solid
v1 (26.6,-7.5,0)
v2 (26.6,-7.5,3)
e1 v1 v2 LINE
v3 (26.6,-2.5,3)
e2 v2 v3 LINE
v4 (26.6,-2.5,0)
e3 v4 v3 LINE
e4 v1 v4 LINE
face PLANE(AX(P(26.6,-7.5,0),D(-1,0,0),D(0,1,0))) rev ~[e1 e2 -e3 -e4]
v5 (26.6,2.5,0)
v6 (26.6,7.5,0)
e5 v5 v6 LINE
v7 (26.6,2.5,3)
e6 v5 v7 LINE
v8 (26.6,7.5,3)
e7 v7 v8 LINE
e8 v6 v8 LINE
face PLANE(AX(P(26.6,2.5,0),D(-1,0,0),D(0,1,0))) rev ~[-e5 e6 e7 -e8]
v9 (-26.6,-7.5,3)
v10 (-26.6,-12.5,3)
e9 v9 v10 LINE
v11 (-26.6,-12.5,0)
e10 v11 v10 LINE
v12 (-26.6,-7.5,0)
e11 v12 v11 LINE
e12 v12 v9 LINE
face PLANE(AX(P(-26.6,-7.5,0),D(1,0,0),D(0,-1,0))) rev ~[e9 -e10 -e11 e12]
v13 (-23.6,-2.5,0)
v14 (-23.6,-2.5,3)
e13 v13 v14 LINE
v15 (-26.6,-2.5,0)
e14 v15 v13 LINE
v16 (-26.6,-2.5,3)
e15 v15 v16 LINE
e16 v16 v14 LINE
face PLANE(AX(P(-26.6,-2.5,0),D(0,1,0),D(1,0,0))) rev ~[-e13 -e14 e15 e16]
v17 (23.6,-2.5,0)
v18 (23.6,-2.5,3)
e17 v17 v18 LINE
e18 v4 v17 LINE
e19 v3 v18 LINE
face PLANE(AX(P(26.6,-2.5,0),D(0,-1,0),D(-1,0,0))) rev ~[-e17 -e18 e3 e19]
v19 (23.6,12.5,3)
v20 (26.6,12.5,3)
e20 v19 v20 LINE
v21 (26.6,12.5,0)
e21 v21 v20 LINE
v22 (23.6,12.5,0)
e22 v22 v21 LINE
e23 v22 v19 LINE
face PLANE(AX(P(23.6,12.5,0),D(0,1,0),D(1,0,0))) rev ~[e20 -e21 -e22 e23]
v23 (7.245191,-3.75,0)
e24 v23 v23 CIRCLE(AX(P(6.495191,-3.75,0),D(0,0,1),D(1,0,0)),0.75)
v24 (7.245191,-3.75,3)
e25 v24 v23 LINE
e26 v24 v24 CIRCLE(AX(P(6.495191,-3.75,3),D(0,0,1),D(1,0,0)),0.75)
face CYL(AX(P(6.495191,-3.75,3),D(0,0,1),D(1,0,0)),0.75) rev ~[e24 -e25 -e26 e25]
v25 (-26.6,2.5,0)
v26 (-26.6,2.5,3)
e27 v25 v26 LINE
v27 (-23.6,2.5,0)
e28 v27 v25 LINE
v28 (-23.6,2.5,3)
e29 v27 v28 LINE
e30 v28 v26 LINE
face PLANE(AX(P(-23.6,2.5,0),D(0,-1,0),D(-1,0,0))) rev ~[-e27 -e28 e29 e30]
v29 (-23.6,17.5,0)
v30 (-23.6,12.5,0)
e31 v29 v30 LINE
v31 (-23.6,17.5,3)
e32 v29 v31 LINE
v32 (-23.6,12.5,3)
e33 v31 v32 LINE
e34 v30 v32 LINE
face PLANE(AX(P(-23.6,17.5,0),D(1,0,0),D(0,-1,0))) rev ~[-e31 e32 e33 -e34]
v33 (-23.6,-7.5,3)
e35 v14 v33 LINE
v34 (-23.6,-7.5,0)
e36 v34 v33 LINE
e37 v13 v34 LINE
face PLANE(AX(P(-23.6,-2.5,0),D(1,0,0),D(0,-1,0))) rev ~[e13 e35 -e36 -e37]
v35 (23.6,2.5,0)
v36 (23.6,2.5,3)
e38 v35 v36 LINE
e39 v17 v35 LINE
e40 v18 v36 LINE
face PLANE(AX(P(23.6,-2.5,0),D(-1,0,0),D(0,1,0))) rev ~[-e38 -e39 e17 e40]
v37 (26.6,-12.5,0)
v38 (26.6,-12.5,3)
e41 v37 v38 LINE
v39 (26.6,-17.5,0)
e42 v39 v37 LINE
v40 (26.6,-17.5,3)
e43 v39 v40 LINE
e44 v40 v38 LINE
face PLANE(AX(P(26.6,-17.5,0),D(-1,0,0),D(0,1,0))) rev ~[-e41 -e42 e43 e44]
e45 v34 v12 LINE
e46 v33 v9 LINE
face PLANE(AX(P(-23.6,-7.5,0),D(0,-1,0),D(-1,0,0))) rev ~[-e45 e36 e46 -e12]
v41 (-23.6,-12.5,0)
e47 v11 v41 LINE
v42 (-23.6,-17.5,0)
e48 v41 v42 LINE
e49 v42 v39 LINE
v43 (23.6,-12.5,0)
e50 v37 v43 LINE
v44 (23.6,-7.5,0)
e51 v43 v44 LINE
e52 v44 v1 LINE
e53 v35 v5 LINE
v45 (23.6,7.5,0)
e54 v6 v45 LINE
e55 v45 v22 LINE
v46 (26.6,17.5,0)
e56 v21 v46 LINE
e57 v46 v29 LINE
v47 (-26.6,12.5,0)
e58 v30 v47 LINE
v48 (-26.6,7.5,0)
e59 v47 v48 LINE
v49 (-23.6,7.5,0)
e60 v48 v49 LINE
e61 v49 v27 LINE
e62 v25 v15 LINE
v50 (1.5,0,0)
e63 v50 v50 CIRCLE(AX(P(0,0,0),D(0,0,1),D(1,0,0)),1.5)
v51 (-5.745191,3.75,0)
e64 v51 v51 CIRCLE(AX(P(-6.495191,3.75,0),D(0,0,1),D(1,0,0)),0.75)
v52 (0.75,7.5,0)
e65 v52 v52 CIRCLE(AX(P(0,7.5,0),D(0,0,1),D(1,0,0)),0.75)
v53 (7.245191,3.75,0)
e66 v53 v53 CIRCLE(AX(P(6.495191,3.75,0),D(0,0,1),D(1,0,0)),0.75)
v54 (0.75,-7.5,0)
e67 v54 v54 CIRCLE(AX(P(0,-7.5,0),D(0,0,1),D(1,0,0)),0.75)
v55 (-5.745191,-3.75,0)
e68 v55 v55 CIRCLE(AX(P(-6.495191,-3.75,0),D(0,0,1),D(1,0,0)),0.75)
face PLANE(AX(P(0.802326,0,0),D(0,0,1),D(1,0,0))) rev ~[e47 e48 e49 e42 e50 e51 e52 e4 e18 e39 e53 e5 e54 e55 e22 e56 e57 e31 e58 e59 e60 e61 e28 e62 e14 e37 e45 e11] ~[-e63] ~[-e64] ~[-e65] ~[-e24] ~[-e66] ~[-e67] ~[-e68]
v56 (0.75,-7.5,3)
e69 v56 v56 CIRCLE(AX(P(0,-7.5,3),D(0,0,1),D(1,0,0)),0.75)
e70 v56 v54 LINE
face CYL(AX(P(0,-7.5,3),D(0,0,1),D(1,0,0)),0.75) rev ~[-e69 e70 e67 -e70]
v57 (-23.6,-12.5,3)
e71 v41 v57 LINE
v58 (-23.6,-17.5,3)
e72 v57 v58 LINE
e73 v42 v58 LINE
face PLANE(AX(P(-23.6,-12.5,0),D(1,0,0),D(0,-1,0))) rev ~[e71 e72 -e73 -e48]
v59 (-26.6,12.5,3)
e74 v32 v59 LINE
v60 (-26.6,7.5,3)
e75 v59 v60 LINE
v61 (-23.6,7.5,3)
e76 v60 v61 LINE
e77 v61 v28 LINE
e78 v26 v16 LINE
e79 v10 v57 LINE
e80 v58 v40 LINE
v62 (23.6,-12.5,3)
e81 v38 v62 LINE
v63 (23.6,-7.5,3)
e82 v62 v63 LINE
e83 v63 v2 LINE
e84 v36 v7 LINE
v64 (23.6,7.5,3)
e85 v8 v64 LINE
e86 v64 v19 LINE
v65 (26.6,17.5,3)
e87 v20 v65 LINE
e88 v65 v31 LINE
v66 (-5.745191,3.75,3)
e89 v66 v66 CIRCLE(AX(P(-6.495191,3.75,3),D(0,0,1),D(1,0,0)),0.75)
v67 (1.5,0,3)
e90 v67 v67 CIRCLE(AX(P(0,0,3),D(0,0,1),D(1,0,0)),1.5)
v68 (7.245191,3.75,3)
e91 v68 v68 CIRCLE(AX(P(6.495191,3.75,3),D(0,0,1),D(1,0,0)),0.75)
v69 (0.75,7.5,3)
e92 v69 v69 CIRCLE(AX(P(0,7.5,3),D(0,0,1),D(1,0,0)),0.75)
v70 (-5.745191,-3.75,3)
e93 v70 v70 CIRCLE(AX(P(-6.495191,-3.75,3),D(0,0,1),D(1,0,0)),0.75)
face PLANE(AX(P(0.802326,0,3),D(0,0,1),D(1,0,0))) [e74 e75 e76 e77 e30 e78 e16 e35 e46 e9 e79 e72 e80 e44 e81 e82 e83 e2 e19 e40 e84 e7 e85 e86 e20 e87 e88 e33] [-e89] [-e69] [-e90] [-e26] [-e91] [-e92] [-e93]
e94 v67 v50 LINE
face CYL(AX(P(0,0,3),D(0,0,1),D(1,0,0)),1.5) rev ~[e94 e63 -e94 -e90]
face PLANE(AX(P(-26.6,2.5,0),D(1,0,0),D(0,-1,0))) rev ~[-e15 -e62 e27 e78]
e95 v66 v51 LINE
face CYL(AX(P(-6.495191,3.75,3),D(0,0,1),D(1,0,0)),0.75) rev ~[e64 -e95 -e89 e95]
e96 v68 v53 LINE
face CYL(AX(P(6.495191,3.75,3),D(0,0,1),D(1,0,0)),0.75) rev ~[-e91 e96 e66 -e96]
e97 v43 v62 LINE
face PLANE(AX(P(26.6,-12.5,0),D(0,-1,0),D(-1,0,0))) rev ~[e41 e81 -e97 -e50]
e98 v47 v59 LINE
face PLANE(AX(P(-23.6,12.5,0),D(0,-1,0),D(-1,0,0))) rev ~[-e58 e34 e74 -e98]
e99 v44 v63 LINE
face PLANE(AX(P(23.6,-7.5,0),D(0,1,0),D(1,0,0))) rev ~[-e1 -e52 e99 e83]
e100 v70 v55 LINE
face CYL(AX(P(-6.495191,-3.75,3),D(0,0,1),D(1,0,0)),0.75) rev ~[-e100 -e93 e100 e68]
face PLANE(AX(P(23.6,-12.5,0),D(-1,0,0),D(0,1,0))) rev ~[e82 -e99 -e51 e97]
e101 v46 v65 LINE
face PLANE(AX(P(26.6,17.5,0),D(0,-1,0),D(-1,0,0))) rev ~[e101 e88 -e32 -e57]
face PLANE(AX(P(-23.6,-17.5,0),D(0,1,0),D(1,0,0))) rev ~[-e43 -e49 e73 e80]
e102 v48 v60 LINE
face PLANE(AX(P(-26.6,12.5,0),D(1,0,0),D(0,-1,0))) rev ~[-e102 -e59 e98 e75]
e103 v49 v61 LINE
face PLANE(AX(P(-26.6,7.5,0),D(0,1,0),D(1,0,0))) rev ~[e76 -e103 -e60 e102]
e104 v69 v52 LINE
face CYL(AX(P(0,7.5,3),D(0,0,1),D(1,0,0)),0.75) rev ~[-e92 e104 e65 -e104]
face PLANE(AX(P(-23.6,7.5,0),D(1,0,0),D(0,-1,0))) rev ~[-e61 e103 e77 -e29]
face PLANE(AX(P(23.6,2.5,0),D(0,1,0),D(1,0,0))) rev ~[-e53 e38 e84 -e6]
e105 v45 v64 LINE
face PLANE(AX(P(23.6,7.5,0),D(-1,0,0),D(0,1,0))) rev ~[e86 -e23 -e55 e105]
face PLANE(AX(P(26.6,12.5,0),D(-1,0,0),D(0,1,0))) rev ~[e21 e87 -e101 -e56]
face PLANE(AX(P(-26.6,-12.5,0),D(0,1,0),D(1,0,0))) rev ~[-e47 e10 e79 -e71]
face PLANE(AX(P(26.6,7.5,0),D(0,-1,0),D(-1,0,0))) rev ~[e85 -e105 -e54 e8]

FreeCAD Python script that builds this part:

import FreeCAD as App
import Part
import Sketcher

doc = App.newDocument("Part")
body = doc.addObject("PartDesign::Body", "Body")

sketch1 = body.newObject("Sketcher::SketchObject", "Sketch")
sketch1.AttachmentSupport = (doc.getObject("XY_Plane"), [""])
sketch1.MapMode = "FlatFace"
sketch1.addGeometry([
    Part.LineSegment(App.Vector(26.6, 2.5, 0), App.Vector(26.6, 7.5, 0)),
    Part.LineSegment(App.Vector(26.6, 7.5, 0), App.Vector(23.6, 7.5, 0)),
    Part.LineSegment(App.Vector(23.6, 7.5, 0), App.Vector(23.6, 12.5, 0)),
    Part.LineSegment(App.Vector(23.6, 12.5, 0), App.Vector(26.6, 12.5, 0)),
    Part.LineSegment(App.Vector(26.6, 12.5, 0), App.Vector(26.6, 17.5, 0)),
    Part.LineSegment(App.Vector(26.6, 17.5, 0), App.Vector(-23.6, 17.5, 0)),
    Part.LineSegment(App.Vector(-23.6, 17.5, 0), App.Vector(-23.6, 12.5, 0)),
    Part.LineSegment(App.Vector(-23.6, 12.5, 0), App.Vector(-26.6, 12.5, 0)),
    Part.LineSegment(App.Vector(-26.6, 12.5, 0), App.Vector(-26.6, 7.5, 0)),
    Part.LineSegment(App.Vector(-26.6, 7.5, 0), App.Vector(-23.6, 7.5, 0)),
    Part.LineSegment(App.Vector(-23.6, 7.5, 0), App.Vector(-23.6, 2.5, 0)),
    Part.LineSegment(App.Vector(-23.6, 2.5, 0), App.Vector(-26.6, 2.5, 0)),
    Part.LineSegment(App.Vector(-26.6, 2.5, 0), App.Vector(-26.6, -2.5, 0)),
    Part.LineSegment(App.Vector(-26.6, -2.5, 0), App.Vector(-23.6, -2.5, 0)),
    Part.LineSegment(App.Vector(-23.6, -2.5, 0), App.Vector(-23.6, -7.5, 0)),
    Part.LineSegment(App.Vector(-23.6, -7.5, 0), App.Vector(-26.6, -7.5, 0)),
    Part.LineSegment(App.Vector(-26.6, -7.5, 0), App.Vector(-26.6, -12.5, 0)),
    Part.LineSegment(App.Vector(-26.6, -12.5, 0), App.Vector(-23.6, -12.5, 0)),
    Part.LineSegment(App.Vector(-23.6, -12.5, 0), App.Vector(-23.6, -17.5, 0)),
    Part.LineSegment(App.Vector(-23.6, -17.5, 0), App.Vector(26.6, -17.5, 0)),
    Part.LineSegment(App.Vector(26.6, -17.5, 0), App.Vector(26.6, -12.5, 0)),
    Part.LineSegment(App.Vector(26.6, -12.5, 0), App.Vector(23.6, -12.5, 0)),
    Part.LineSegment(App.Vector(23.6, -12.5, 0), App.Vector(23.6, -7.5, 0)),
    Part.LineSegment(App.Vector(23.6, -7.5, 0), App.Vector(26.6, -7.5, 0)),
    Part.LineSegment(App.Vector(26.6, -7.5, 0), App.Vector(26.6, -2.5, 0)),
    Part.LineSegment(App.Vector(26.6, -2.5, 0), App.Vector(23.6, -2.5, 0)),
    Part.LineSegment(App.Vector(23.6, -2.5, 0), App.Vector(23.6, 2.5, 0)),
    Part.LineSegment(App.Vector(23.6, 2.5, 0), App.Vector(26.6, 2.5, 0)),
], False)
sketch1.addConstraint([
    Sketcher.Constraint("Coincident", 0, 2, 1, 1),
    Sketcher.Constraint("Coincident", 1, 2, 2, 1),
    Sketcher.Constraint("Coincident", 2, 2, 3, 1),
    Sketcher.Constraint("Coincident", 3, 2, 4, 1),
    Sketcher.Constraint("Coincident", 4, 2, 5, 1),
    Sketcher.Constraint("Coincident", 5, 2, 6, 1),
    Sketcher.Constraint("Coincident", 6, 2, 7, 1),
    Sketcher.Constraint("Coincident", 7, 2, 8, 1),
    Sketcher.Constraint("Coincident", 8, 2, 9, 1),
    Sketcher.Constraint("Coincident", 9, 2, 10, 1),
    Sketcher.Constraint("Coincident", 10, 2, 11, 1),
    Sketcher.Constraint("Coincident", 11, 2, 12, 1),
    Sketcher.Constraint("Coincident", 12, 2, 13, 1),
    Sketcher.Constraint("Coincident", 13, 2, 14, 1),
    Sketcher.Constraint("Coincident", 14, 2, 15, 1),
    Sketcher.Constraint("Coincident", 15, 2, 16, 1),
    Sketcher.Constraint("Coincident", 16, 2, 17, 1),
    Sketcher.Constraint("Coincident", 17, 2, 18, 1),
    Sketcher.Constraint("Coincident", 18, 2, 19, 1),
    Sketcher.Constraint("Coincident", 19, 2, 20, 1),
    Sketcher.Constraint("Coincident", 20, 2, 21, 1),
    Sketcher.Constraint("Coincident", 21, 2, 22, 1),
    Sketcher.Constraint("Coincident", 22, 2, 23, 1),
    Sketcher.Constraint("Coincident", 23, 2, 24, 1),
    Sketcher.Constraint("Coincident", 24, 2, 25, 1),
    Sketcher.Constraint("Coincident", 25, 2, 26, 1),
    Sketcher.Constraint("Coincident", 26, 2, 27, 1),
    Sketcher.Constraint("Coincident", 27, 2, 0, 1),
    Sketcher.Constraint("Vertical", 0),
    Sketcher.Constraint("Horizontal", 1),
    Sketcher.Constraint("Vertical", 2),
    Sketcher.Constraint("Horizontal", 3),
    Sketcher.Constraint("Vertical", 4),
    Sketcher.Constraint("Horizontal", 5),
    Sketcher.Constraint("Vertical", 6),
    Sketcher.Constraint("Horizontal", 7),
    Sketcher.Constraint("Vertical", 8),
    Sketcher.Constraint("Horizontal", 9),
    Sketcher.Constraint("Vertical", 10),
    Sketcher.Constraint("Horizontal", 11),
    Sketcher.Constraint("Vertical", 12),
    Sketcher.Constraint("Horizontal", 13),
    Sketcher.Constraint("Vertical", 14),
    Sketcher.Constraint("Horizontal", 15),
    Sketcher.Constraint("Vertical", 16),
    Sketcher.Constraint("Horizontal", 17),
    Sketcher.Constraint("Vertical", 18),
    Sketcher.Constraint("Horizontal", 19),
    Sketcher.Constraint("Vertical", 20),
    Sketcher.Constraint("Horizontal", 21),
    Sketcher.Constraint("Vertical", 22),
    Sketcher.Constraint("Horizontal", 23),
    Sketcher.Constraint("Vertical", 24),
    Sketcher.Constraint("Horizontal", 25),
    Sketcher.Constraint("Vertical", 26),
    Sketcher.Constraint("Horizontal", 27),
    Sketcher.Constraint("Symmetric", 1, 2, 14, 2, -1, 1),
    Sketcher.Constraint("Symmetric", 3, 2, 16, 2, -1, 1),
    Sketcher.Constraint("Symmetric", 7, 2, 20, 2, -1, 1),
    Sketcher.Constraint("Symmetric", 9, 2, 22, 2, -1, 1),
    Sketcher.Constraint("Symmetric", 11, 2, 24, 2, -1, 1),
    Sketcher.Constraint("Symmetric", 13, 2, 26, 2, -1, 1),
    Sketcher.Constraint("Symmetric", 2, 2, 6, 2, -2),
    Sketcher.Constraint("Symmetric", 0, 2, 8, 2, -2),
    Sketcher.Constraint("Symmetric", 10, 2, 26, 2, -2),
    Sketcher.Constraint("Symmetric", 5, 2, 18, 2, -1),
    Sketcher.Constraint("Vertical", 0, 2, 3, 2),
    Sketcher.Constraint("Vertical", 8, 2, 11, 2),
    Sketcher.Constraint("Equal", 0, 2),
    Sketcher.Constraint("Equal", 2, 4),
    Sketcher.Constraint("Equal", 10, 12),
    Sketcher.Constraint("DistanceX", 1, 2, 1, 1, 3.0),
    Sketcher.Constraint("DistanceY", 0, 1, 0, 2, 5.0),
    Sketcher.Constraint("DistanceX", 5, 2, 5, 1, 50.2),
])
pad1 = body.newObject("PartDesign::Pad", "Pad")
pad1.Profile = sketch1
pad1.Length = 3

sketch2 = body.newObject("Sketcher::SketchObject", "Sketch001")
sketch2.AttachmentSupport = (doc.getObject("XY_Plane"), [""])
sketch2.MapMode = "FlatFace"
sketch2.AttachmentOffset = App.Placement(App.Vector(0, 0, 3), App.Rotation())
sketch2.addGeometry(Part.Circle(App.Vector(0, 7.5, 0), App.Vector(0, 0, 1), 0.8), False)
sketch2.addConstraint([
    Sketcher.Constraint("PointOnObject", 0, 3, -2),
    Sketcher.Constraint("Diameter", 0, 1.5),
    Sketcher.Constraint("DistanceY", -1, 1, 0, 3, 7.5),
])
pocket1 = body.newObject("PartDesign::Pocket", "Pocket")
pocket1.Profile = sketch2
pocket1.Type = "UpToFirst"

sketch3 = body.newObject("Sketcher::SketchObject", "Sketch002")
sketch3.AttachmentSupport = (doc.getObject("XY_Plane"), [""])
sketch3.MapMode = "FlatFace"
sketch3.AttachmentOffset = App.Placement(App.Vector(0, 0, 3), App.Rotation())
sketch3.addGeometry(Part.Circle(App.Vector(6.5, 3.8, 0), App.Vector(0, 0, 1), 0.8), False)
sketch3.addConstraint([
    Sketcher.Constraint("Diameter", 0, 1.5),
    Sketcher.Constraint("DistanceY", -1, 1, 0, 3, 3.75),
    Sketcher.Constraint("DistanceX", -1, 1, 0, 3, 6.495191),
])
pocket2 = body.newObject("PartDesign::Pocket", "Pocket001")
pocket2.Profile = sketch3
pocket2.Type = "UpToFirst"

sketch4 = body.newObject("Sketcher::SketchObject", "Sketch003")
sketch4.AttachmentSupport = (doc.getObject("XY_Plane"), [""])
sketch4.MapMode = "FlatFace"
sketch4.AttachmentOffset = App.Placement(App.Vector(0, 0, 3), App.Rotation())
sketch4.addGeometry(Part.Circle(App.Vector(6.5, -3.8, 0), App.Vector(0, 0, 1), 0.8), False)
sketch4.addConstraint([
    Sketcher.Constraint("Diameter", 0, 1.5),
    Sketcher.Constraint("DistanceY", 0, 3, -1, 1, 3.75),
    Sketcher.Constraint("DistanceX", -1, 1, 0, 3, 6.495191),
])
pocket3 = body.newObject("PartDesign::Pocket", "Pocket002")
pocket3.Profile = sketch4
pocket3.Type = "UpToFirst"

sketch5 = body.newObject("Sketcher::SketchObject", "Sketch004")
sketch5.AttachmentSupport = (doc.getObject("XY_Plane"), [""])
sketch5.MapMode = "FlatFace"
sketch5.AttachmentOffset = App.Placement(App.Vector(0, 0, 3), App.Rotation())
sketch5.addGeometry(Part.Circle(App.Vector(0, -7.5, 0), App.Vector(0, 0, 1), 0.8), False)
sketch5.addConstraint([
    Sketcher.Constraint("PointOnObject", 0, 3, -2),
    Sketcher.Constraint("Diameter", 0, 1.5),
    Sketcher.Constraint("DistanceY", 0, 3, -1, 1, 7.5),
])
pocket4 = body.newObject("PartDesign::Pocket", "Pocket003")
pocket4.Profile = sketch5
pocket4.Type = "UpToFirst"

sketch6 = body.newObject("Sketcher::SketchObject", "Sketch005")
sketch6.AttachmentSupport = (doc.getObject("XY_Plane"), [""])
sketch6.MapMode = "FlatFace"
sketch6.AttachmentOffset = App.Placement(App.Vector(0, 0, 3), App.Rotation())
sketch6.addGeometry(Part.Circle(App.Vector(-6.5, -3.8, 0), App.Vector(0, 0, 1), 0.8), False)
sketch6.addConstraint([
    Sketcher.Constraint("Diameter", 0, 1.5),
    Sketcher.Constraint("DistanceY", 0, 3, -1, 1, 3.75),
    Sketcher.Constraint("DistanceX", 0, 3, -1, 1, 6.495191),
])
pocket5 = body.newObject("PartDesign::Pocket", "Pocket004")
pocket5.Profile = sketch6
pocket5.Type = "UpToFirst"

sketch7 = body.newObject("Sketcher::SketchObject", "Sketch006")
sketch7.AttachmentSupport = (doc.getObject("XY_Plane"), [""])
sketch7.MapMode = "FlatFace"
sketch7.AttachmentOffset = App.Placement(App.Vector(0, 0, 3), App.Rotation())
sketch7.addGeometry(Part.Circle(App.Vector(-6.5, 3.8, 0), App.Vector(0, 0, 1), 0.8), False)
sketch7.addConstraint([
    Sketcher.Constraint("Diameter", 0, 1.5),
    Sketcher.Constraint("DistanceY", -1, 1, 0, 3, 3.75),
    Sketcher.Constraint("DistanceX", 0, 3, -1, 1, 6.495191),
])
pocket6 = body.newObject("PartDesign::Pocket", "Pocket005")
pocket6.Profile = sketch7
pocket6.Type = "UpToFirst"

sketch8 = body.newObject("Sketcher::SketchObject", "Sketch007")
sketch8.AttachmentSupport = (doc.getObject("XY_Plane"), [""])
sketch8.MapMode = "FlatFace"
sketch8.AttachmentOffset = App.Placement(App.Vector(0, 0, 3), App.Rotation())
sketch8.addGeometry(Part.Circle(App.Vector(0, 0, 0), App.Vector(0, 0, 1), 1.5), False)
sketch8.addConstraint([
    Sketcher.Constraint("Coincident", 0, 3, -1, 1),
    Sketcher.Constraint("Diameter", 0, 3.0),
])
pocket7 = body.newObject("PartDesign::Pocket", "Pocket006")
pocket7.Profile = sketch8
pocket7.Type = "UpToFirst"

doc.recompute()
